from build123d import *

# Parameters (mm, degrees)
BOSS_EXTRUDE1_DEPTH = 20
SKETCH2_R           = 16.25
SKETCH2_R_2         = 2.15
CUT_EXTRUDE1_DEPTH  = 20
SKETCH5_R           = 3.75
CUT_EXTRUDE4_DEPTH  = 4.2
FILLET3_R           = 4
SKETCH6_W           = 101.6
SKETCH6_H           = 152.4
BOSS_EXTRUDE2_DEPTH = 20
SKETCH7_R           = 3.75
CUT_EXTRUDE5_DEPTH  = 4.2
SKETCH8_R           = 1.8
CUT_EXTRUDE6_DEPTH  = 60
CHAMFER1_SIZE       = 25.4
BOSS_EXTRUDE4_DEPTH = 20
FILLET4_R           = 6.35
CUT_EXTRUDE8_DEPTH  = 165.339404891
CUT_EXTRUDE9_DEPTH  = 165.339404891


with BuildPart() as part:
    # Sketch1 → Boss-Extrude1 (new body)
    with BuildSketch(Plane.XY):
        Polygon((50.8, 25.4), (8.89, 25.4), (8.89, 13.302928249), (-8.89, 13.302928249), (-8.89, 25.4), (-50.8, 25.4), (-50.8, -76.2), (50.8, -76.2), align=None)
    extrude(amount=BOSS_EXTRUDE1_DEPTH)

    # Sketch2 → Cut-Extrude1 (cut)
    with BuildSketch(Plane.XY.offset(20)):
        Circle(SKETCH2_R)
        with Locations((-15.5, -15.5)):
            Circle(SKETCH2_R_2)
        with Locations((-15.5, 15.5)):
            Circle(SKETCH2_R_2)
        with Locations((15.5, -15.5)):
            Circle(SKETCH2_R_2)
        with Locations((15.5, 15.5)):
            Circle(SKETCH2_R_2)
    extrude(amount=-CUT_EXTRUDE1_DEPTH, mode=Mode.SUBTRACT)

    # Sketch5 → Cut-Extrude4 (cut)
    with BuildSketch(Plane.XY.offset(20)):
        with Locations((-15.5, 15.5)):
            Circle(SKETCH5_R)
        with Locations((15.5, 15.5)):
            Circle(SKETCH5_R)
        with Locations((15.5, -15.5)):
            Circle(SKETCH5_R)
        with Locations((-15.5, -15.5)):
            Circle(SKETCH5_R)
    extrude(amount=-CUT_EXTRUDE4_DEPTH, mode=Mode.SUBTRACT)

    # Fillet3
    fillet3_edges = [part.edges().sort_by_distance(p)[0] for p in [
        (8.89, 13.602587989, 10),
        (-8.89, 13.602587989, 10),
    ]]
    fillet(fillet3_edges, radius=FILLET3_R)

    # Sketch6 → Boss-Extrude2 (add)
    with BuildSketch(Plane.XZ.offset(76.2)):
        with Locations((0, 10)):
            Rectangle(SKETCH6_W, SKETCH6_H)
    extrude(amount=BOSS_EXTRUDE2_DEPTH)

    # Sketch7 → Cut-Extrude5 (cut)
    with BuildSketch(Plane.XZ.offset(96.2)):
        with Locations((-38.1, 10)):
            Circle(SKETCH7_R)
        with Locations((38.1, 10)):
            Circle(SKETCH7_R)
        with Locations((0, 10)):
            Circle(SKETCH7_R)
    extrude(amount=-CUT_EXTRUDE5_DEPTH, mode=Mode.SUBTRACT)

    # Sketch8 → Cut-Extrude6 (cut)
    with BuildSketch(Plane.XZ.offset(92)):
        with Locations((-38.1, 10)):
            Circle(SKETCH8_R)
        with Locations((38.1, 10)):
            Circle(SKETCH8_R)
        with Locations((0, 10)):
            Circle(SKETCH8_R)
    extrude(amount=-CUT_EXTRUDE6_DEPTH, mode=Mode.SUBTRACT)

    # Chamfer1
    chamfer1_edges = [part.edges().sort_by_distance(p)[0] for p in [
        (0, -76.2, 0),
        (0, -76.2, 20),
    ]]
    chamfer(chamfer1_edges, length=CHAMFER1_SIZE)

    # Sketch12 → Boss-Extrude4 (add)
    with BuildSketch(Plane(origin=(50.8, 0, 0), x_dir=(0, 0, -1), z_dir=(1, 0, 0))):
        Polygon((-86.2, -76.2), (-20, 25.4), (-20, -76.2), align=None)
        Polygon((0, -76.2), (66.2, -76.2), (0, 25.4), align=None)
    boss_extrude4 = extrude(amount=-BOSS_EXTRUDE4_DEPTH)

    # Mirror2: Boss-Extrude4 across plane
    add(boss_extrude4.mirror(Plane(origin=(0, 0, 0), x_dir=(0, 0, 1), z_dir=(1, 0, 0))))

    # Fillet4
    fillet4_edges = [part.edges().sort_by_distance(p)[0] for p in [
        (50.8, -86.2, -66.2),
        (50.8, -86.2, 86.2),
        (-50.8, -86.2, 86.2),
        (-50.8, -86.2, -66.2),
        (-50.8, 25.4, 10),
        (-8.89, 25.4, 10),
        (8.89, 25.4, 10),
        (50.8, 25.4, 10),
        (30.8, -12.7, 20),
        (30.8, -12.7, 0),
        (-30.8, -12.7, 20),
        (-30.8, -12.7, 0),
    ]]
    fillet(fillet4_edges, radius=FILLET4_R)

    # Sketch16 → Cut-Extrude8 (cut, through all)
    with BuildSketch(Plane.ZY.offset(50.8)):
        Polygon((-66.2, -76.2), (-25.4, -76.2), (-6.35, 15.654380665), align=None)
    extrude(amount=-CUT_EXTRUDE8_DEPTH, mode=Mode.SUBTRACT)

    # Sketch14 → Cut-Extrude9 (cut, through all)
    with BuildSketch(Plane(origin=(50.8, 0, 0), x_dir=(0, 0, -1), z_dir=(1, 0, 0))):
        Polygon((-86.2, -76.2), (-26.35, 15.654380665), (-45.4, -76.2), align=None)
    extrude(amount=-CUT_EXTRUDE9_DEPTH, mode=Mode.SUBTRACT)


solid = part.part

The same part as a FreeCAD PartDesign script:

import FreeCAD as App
import Part
import Sketcher
from FreeCAD import Vector


def edges_at(feature, points):
    """Names of the edges that pass closest to the given points."""
    edges = feature.Shape.Edges
    near = lambda p: min(range(len(edges)), key=lambda i: edges[i].distToShape(Part.Vertex(*p))[0])
    return sorted({f"Edge{near(p) + 1}" for p in points})


def add_polygon(sketch, points):
    """Adds a closed chain of lines whose ends are joined by coincident constraints."""
    first, n = sketch.GeometryCount, len(points)
    for a, b in zip(points, points[1:] + points[:1]):
        sketch.addGeometry(Part.LineSegment(App.Vector(*a, 0), App.Vector(*b, 0)), False)
    for i in range(n):
        sketch.addConstraint(Sketcher.Constraint("Coincident", first + i, 2, first + (i + 1) % n, 1))

doc = App.newDocument("Part")
body = doc.addObject("PartDesign::Body", "Body")

# Sketch on XY plane
sketch1 = body.newObject("Sketcher::SketchObject", "Sketch")
sketch1.AttachmentSupport = (doc.getObject("XY_Plane"), [""])
sketch1.MapMode = "FlatFace"
add_polygon(sketch1, [(51, 25), (9, 25), (9, 13), (-9, 13), (-9, 25), (-51, 25), (-51, -76), (51, -76)])  # lines 0-7
sketch1.addConstraint([
    Sketcher.Constraint("Horizontal", 0),
    Sketcher.Constraint("Vertical", 1),
    Sketcher.Constraint("Horizontal", 2),
    Sketcher.Constraint("Vertical", 3),
    Sketcher.Constraint("Horizontal", 4),
    Sketcher.Constraint("Vertical", 5),
    Sketcher.Constraint("Horizontal", 6),
    Sketcher.Constraint("Vertical", 7),
    Sketcher.Constraint("Symmetric", 0, 2, 3, 2, -2),
    Sketcher.Constraint("Equal", 0, 4),
    Sketcher.Constraint("Equal", 6, 5),
    Sketcher.Constraint("DistanceX", 6, 1, 6, 2, 101.6),
    Sketcher.Constraint("DistanceX", 0, 2, 0, 1, 41.91),
    Sketcher.Constraint("DistanceY", -1, 1, 0, 2, 25.4),
    Sketcher.Constraint("DistanceY", 1, 2, 1, 1, 12.097072),
])
pad1 = body.newObject("PartDesign::Pad", "Pad")
pad1.Profile = sketch1
pad1.Length = 20

# Sketch on XY plane
sketch2 = body.newObject("Sketcher::SketchObject", "Sketch001")
sketch2.AttachmentSupport = (doc.getObject("XY_Plane"), [""])
sketch2.MapMode = "FlatFace"
sketch2.AttachmentOffset = App.Placement(Vector(0, 0, 20), App.Rotation())
sketch2.addGeometry([
    Part.Circle(Vector(0, 0, 0), Vector(0, 0, 1), 16.2),  # 0
    Part.Circle(Vector(-15.5, -15.5, 0), Vector(0, 0, 1), 2.1),  # 1
    Part.Circle(Vector(-15.5, 15.5, 0), Vector(0, 0, 1), 2.1),  # 2
    Part.Circle(Vector(15.5, -15.5, 0), Vector(0, 0, 1), 2.1),  # 3
    Part.Circle(Vector(15.5, 15.5, 0), Vector(0, 0, 1), 2.1),  # 4
], False)
sketch2.addConstraint([
    Sketcher.Constraint("Coincident", 0, 3, -1, 1),
    Sketcher.Constraint("Equal", 1, 2),
    Sketcher.Constraint("Equal", 2, 3),
    Sketcher.Constraint("Equal", 3, 4),
    Sketcher.Constraint("Symmetric", 2, 3, 3, 3, -1, 1),
    Sketcher.Constraint("Symmetric", 1, 3, 4, 3, -1, 1),
    Sketcher.Constraint("Symmetric", 1, 3, 3, 3, -2),
    Sketcher.Constraint("Diameter", 0, 32.5),
    Sketcher.Constraint("Diameter", 1, 4.3),
    Sketcher.Constraint("DistanceY", 1, 3, 2, 3, 31.0),
    Sketcher.Constraint("DistanceX", 1, 3, 3, 3, 31.0),
])
pocket1 = body.newObject("PartDesign::Pocket", "Pocket")
pocket1.Profile = sketch2
pocket1.Length = 20

# Sketch on XY plane
sketch3 = body.newObject("Sketcher::SketchObject", "Sketch002")
sketch3.AttachmentSupport = (doc.getObject("XY_Plane"), [""])
sketch3.MapMode = "FlatFace"
sketch3.AttachmentOffset = App.Placement(Vector(0, 0, 20), App.Rotation())
sketch3.addGeometry([
    Part.Circle(Vector(-15.5, 15.5, 0), Vector(0, 0, 1), 3.8),
    Part.Circle(Vector(15.5, 15.5, 0), Vector(0, 0, 1), 3.8),
    Part.Circle(Vector(15.5, -15.5, 0), Vector(0, 0, 1), 3.8),
    Part.Circle(Vector(-15.5, -15.5, 0), Vector(0, 0, 1), 3.8),
], False)
sketch3.addConstraint([
    Sketcher.Constraint("Equal", 0, 1),
    Sketcher.Constraint("Equal", 1, 2),
    Sketcher.Constraint("Equal", 2, 3),
    Sketcher.Constraint("Symmetric", 0, 3, 2, 3, -1, 1),
    Sketcher.Constraint("Symmetric", 1, 3, 3, 3, -1, 1),
    Sketcher.Constraint("Symmetric", 0, 3, 1, 3, -2),
    Sketcher.Constraint("Diameter", 0, 7.5),
    Sketcher.Constraint("DistanceX", 0, 3, 1, 3, 31.0),
    Sketcher.Constraint("DistanceY", 2, 3, 1, 3, 31.0),
])
pocket2 = body.newObject("PartDesign::Pocket", "Pocket001")
pocket2.Profile = sketch3
pocket2.Length = 4.2
doc.recompute()

fillet = body.newObject("PartDesign::Fillet", "Fillet")
fillet.Base = (pocket2, edges_at(pocket2, [(8.89, 13.603, 10), (-8.89, 13.603, 10)]))
fillet.Radius = 4

# Sketch on XZ plane
sketch4 = body.newObject("Sketcher::SketchObject", "Sketch003")
sketch4.AttachmentSupport = (doc.getObject("XZ_Plane"), [""])
sketch4.MapMode = "FlatFace"
sketch4.AttachmentOffset = App.Placement(Vector(0, 0, 76.2), App.Rotation())
add_polygon(sketch4, [(-51, 86), (-51, -66), (51, -66), (51, 86)])  # lines 0-3
sketch4.addConstraint([
    Sketcher.Constraint("Vertical", 0),
    Sketcher.Constraint("Horizontal", 1),
    Sketcher.Constraint("Vertical", 2),
    Sketcher.Constraint("Horizontal", 3),
    Sketcher.Constraint("DistanceX", 1, 1, 1, 2, 101.6),
    Sketcher.Constraint("DistanceY", 0, 2, 0, 1, 152.4),
    Sketcher.Constraint("DistanceX", 0, 2, -1, 1, 50.8),
    Sketcher.Constraint("DistanceY", 0, 2, -1, 1, 66.2),
])
pad2 = body.newObject("PartDesign::Pad", "Pad001")
pad2.Profile = sketch4
pad2.Length = 20

# Sketch on XZ plane
sketch5 = body.newObject("Sketcher::SketchObject", "Sketch004")
sketch5.AttachmentSupport = (doc.getObject("XZ_Plane"), [""])
sketch5.MapMode = "FlatFace"
sketch5.AttachmentOffset = App.Placement(Vector(0, 0, 96.2), App.Rotation())
sketch5.addGeometry([
    Part.Circle(Vector(-38.1, 10, 0), Vector(0, 0, 1), 3.8),
    Part.Circle(Vector(38.1, 10, 0), Vector(0, 0, 1), 3.8),
    Part.Circle(Vector(0, 10, 0), Vector(0, 0, 1), 3.8),
], False)
sketch5.addConstraint([
    Sketcher.Constraint("Equal", 0, 1),
    Sketcher.Constraint("Equal", 1, 2),
    Sketcher.Constraint("Symmetric", 0, 3, 1, 3, -2),
    Sketcher.Constraint("PointOnObject", 2, 3, -2),
    Sketcher.Constraint("Horizontal", 1, 3, 2, 3),
    Sketcher.Constraint("Diameter", 0, 7.5),
    Sketcher.Constraint("DistanceY", -1, 1, 0, 3, 10.0),
    Sketcher.Constraint("DistanceX", 0, 3, -1, 1, 38.1),
])
pocket3 = body.newObject("PartDesign::Pocket", "Pocket002")
pocket3.Profile = sketch5
pocket3.Length = 4.2

# Sketch on XZ plane
sketch6 = body.newObject("Sketcher::SketchObject", "Sketch005")
sketch6.AttachmentSupport = (doc.getObject("XZ_Plane"), [""])
sketch6.MapMode = "FlatFace"
sketch6.AttachmentOffset = App.Placement(Vector(0, 0, 92), App.Rotation())
sketch6.addGeometry([
    Part.Circle(Vector(-38.1, 10, 0), Vector(0, 0, 1), 1.8),
    Part.Circle(Vector(38.1, 10, 0), Vector(0, 0, 1), 1.8),
    Part.Circle(Vector(0, 10, 0), Vector(0, 0, 1), 1.8),
], False)
sketch6.addConstraint([
    Sketcher.Constraint("Equal", 0, 1),
    Sketcher.Constraint("Equal", 1, 2),
    Sketcher.Constraint("Symmetric", 0, 3, 1, 3, -2),
    Sketcher.Constraint("PointOnObject", 2, 3, -2),
    Sketcher.Constraint("Horizontal", 1, 3, 2, 3),
    Sketcher.Constraint("Diameter", 0, 3.6),
    Sketcher.Constraint("DistanceY", -1, 1, 0, 3, 10.0),
    Sketcher.Constraint("DistanceX", 0, 3, -1, 1, 38.1),
])
pocket4 = body.newObject("PartDesign::Pocket", "Pocket003")
pocket4.Profile = sketch6
pocket4.Length = 60
doc.recompute()

chamfer = body.newObject("PartDesign::Chamfer", "Chamfer")
chamfer.Base = (pocket4, edges_at(pocket4, [(0, -76.2, 0), (0, -76.2, 20)]))
chamfer.Size = 25.4

# Sketch on YZ plane
sketch7 = body.newObject("Sketcher::SketchObject", "Sketch006")
sketch7.AttachmentSupport = (doc.getObject("YZ_Plane"), [""])
sketch7.MapMode = "FlatFace"
sketch7.AttachmentOffset = App.Placement(Vector(0, 0, 50.8), App.Rotation())
add_polygon(sketch7, [(25, 20), (-76, 86), (-76, 20)])  # lines 0-2
add_polygon(sketch7, [(-76, 0), (-76, -66), (25, 0)])  # lines 3-5
sketch7.addConstraint([
    Sketcher.Constraint("Vertical", 1),
    Sketcher.Constraint("Horizontal", 2),
    Sketcher.Constraint("Vertical", 3),
    Sketcher.Constraint("Horizontal", 5),
    Sketcher.Constraint("PointOnObject", 4, 2, -1),
    Sketcher.Constraint("Vertical", 1, 2, 3, 2),
    Sketcher.Constraint("Vertical", 2, 2, 4, 2),
    Sketcher.Constraint("Equal", 1, 3),
    Sketcher.Constraint("DistanceX", 2, 1, 2, 2, 101.6),
    Sketcher.Constraint("DistanceY", 1, 2, 1, 1, 66.2),
    Sketcher.Constraint("DistanceY", -1, 1, 1, 2, 20.0),
    Sketcher.Constraint("DistanceX", 0, 2, -1, 1, 76.2),
])
pad3 = body.newObject("PartDesign::Pad", "Pad002")
pad3.Profile = sketch7
pad3.Length = 20
pad3.Reversed = True
doc.recompute()

mirrored = body.newObject("PartDesign::Mirrored", "Mirrored")
mirrored.Originals = [pad3]
mirrored.MirrorPlane = (doc.getObject("YZ_Plane"), [""])
body.Tip = mirrored
doc.recompute()

fillet2 = body.newObject("PartDesign::Fillet", "Fillet001")
fillet2.Base = (mirrored, edges_at(mirrored, [
    (50.8, -86.2, -66.2),
    (50.8, -86.2, 86.2),
    (-50.8, -86.2, 86.2),
    (-50.8, -86.2, -66.2),
    (-50.8, 25.4, 10),
    (-8.89, 25.4, 10),
    (8.89, 25.4, 10),
    (50.8, 25.4, 10),
    (30.8, -12.7, 20),
    (30.8, -12.7, 0),
    (-30.8, -12.7, 20),
    (-30.8, -12.7, 0),
]))
fillet2.Radius = 6.35

# Sketch on YZ plane
sketch8 = body.newObject("Sketcher::SketchObject", "Sketch007")
sketch8.AttachmentSupport = (doc.getObject("YZ_Plane"), [""])
sketch8.MapMode = "FlatFace"
sketch8.AttachmentOffset = App.Placement(Vector(0, 0, -50.8), App.Rotation())
add_polygon(sketch8, [(-76, -66), (-76, -25), (16, -6)])  # lines 0-2
sketch8.addConstraint([
    Sketcher.Constraint("Vertical", 0),
    Sketcher.Constraint("DistanceY", 0, 1, 0, 2, 40.8),
    Sketcher.Constraint("DistanceX", 0, 2, -1, 1, 76.2),
    Sketcher.Constraint("DistanceY", 0, 2, -1, 1, 25.4),
    Sketcher.Constraint("DistanceY", 1, 2, -1, 1, 6.35),
    Sketcher.Constraint("Distance", 2, 109.632339),
])
pocket5 = body.newObject("PartDesign::Pocket", "Pocket004")
pocket5.Profile = sketch8
pocket5.Type = "ThroughAll"
pocket5.Reversed = True

# Sketch on YZ plane
sketch9 = body.newObject("Sketcher::SketchObject", "Sketch008")
sketch9.AttachmentSupport = (doc.getObject("YZ_Plane"), [""])
sketch9.MapMode = "FlatFace"
sketch9.AttachmentOffset = App.Placement(Vector(0, 0, 50.8), App.Rotation())
add_polygon(sketch9, [(16, 26), (-76, 86), (-76, 45)])  # lines 0-2
sketch9.addConstraint([
    Sketcher.Constraint("Vertical", 1),
    Sketcher.Constraint("DistanceY", 1, 2, 1, 1, 40.8),
    Sketcher.Constraint("DistanceX", 0, 2, -1, 1, 76.2),
    Sketcher.Constraint("DistanceY", -1, 1, 0, 2, 86.2),
    Sketcher.Constraint("DistanceY", -1, 1, 2, 2, 26.35),
    Sketcher.Constraint("Distance", 0, 109.632339),
])
pocket6 = body.newObject("PartDesign::Pocket", "Pocket005")
pocket6.Profile = sketch9
pocket6.Type = "ThroughAll"

doc.recompute()
